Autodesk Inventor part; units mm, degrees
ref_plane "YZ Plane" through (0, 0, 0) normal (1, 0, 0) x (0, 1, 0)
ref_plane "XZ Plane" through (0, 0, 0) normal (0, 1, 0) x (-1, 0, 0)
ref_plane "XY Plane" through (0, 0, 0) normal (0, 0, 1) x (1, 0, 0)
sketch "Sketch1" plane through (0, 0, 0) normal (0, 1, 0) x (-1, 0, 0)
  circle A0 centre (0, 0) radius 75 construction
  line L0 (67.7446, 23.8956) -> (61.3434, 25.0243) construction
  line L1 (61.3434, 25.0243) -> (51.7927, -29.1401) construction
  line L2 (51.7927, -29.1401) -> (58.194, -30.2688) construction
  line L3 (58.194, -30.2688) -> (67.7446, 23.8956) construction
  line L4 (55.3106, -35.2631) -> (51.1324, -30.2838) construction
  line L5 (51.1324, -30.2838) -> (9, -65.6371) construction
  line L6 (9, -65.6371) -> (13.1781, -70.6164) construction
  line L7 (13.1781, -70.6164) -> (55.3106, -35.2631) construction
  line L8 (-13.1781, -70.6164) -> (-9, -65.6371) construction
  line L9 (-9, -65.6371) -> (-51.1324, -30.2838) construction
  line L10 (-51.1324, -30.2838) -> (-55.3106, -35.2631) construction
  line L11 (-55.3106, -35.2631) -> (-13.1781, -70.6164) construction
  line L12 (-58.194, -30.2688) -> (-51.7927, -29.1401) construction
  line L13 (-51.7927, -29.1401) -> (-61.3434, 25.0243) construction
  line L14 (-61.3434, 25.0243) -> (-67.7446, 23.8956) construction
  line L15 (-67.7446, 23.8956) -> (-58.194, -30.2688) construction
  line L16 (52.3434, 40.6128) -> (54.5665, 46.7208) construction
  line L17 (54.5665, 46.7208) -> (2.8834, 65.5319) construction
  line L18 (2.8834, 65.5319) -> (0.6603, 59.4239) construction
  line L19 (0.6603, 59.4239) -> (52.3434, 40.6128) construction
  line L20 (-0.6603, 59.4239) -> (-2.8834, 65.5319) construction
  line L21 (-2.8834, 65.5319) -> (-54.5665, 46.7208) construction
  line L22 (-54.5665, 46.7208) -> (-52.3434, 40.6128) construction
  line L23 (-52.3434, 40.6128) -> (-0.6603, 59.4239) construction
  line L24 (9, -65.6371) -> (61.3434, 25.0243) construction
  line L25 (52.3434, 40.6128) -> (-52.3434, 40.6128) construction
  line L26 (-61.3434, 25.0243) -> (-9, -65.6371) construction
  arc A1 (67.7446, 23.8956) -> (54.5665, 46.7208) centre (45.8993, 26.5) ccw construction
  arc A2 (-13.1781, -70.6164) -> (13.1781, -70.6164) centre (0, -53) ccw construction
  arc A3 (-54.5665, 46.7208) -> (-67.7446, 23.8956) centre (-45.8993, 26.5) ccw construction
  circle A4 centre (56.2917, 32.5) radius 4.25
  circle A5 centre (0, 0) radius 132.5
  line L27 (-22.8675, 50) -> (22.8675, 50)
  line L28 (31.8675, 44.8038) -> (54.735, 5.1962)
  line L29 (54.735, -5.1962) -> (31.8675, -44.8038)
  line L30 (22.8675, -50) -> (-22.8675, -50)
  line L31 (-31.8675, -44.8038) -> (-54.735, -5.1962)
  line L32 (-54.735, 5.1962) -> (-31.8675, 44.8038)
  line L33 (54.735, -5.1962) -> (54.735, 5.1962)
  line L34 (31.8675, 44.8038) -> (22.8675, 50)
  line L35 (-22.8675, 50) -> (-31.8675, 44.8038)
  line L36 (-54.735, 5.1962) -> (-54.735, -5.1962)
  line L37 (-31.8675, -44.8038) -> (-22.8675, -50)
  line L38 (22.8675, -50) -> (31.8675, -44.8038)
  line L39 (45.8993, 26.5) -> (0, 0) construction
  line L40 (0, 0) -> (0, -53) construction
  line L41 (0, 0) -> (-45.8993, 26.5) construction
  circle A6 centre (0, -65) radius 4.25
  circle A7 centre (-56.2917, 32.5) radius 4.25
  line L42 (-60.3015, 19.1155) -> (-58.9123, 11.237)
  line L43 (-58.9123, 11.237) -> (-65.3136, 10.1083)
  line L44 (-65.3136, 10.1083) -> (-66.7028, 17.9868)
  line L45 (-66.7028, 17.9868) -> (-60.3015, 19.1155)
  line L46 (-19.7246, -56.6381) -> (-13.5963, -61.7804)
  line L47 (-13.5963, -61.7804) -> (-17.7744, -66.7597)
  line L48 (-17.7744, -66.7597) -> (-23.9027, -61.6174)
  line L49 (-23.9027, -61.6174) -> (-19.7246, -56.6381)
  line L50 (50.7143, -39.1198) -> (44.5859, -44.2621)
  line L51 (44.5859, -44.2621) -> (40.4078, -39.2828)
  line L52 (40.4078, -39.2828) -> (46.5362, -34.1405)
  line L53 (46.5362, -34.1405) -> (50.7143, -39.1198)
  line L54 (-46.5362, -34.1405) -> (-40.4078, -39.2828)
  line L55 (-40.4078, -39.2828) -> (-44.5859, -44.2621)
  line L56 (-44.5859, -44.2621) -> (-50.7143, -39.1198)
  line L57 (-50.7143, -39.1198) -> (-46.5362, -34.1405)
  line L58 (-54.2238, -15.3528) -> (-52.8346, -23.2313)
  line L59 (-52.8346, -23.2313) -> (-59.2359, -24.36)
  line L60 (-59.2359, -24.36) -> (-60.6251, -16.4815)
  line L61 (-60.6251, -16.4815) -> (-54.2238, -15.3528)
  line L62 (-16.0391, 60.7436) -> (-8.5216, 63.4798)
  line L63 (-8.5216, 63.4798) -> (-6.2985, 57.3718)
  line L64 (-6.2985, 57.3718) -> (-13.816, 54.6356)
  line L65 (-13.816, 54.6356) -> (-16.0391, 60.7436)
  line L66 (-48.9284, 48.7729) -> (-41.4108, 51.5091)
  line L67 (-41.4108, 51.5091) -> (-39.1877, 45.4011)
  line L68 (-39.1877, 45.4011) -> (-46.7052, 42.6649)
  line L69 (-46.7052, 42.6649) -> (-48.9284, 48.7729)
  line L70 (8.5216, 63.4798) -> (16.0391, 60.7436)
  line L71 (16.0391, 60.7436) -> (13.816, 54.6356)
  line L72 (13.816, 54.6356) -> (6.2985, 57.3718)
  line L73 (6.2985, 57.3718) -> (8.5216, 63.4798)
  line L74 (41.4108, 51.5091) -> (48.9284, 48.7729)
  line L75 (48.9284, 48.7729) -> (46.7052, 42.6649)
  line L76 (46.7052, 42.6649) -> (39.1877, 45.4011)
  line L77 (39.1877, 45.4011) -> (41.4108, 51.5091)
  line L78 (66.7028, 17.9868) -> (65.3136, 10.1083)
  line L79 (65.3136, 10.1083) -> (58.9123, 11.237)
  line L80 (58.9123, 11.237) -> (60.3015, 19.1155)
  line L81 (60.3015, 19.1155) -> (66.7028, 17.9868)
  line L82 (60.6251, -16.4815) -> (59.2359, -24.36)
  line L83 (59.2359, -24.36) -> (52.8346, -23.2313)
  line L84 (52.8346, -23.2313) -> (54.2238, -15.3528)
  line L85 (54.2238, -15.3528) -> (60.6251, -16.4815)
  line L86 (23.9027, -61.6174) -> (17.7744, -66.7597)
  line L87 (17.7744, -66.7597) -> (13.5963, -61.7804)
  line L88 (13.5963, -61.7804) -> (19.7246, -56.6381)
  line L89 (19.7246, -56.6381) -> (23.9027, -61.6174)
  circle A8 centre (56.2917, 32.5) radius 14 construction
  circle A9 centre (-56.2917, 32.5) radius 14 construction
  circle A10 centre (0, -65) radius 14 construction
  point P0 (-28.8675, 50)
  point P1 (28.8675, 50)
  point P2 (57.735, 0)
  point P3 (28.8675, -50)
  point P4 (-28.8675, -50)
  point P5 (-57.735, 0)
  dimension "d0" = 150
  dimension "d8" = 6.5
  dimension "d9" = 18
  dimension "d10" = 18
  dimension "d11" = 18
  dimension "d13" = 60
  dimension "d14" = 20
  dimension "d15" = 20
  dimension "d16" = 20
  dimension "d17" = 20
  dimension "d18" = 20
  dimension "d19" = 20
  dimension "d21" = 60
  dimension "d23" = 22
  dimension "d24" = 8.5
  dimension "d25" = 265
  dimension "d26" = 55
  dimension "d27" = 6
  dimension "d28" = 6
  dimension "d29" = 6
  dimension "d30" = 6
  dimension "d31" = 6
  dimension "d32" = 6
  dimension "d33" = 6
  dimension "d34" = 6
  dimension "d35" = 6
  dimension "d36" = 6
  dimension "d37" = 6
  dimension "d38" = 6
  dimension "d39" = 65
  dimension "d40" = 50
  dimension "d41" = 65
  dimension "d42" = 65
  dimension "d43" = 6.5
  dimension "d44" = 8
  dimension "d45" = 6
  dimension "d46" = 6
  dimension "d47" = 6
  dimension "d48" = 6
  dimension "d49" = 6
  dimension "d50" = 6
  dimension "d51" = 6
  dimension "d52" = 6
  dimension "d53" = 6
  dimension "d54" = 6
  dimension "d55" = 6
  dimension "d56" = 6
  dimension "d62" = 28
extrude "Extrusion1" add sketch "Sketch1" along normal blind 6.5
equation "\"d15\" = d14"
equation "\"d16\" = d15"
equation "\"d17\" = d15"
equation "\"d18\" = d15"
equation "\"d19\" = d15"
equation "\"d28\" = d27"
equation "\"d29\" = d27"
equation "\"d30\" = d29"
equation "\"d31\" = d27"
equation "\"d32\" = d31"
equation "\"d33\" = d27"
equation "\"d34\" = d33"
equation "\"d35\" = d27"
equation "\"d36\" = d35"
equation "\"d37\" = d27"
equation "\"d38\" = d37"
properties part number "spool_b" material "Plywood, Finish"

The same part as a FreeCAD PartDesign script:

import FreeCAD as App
import Part
import Sketcher
from FreeCAD import Vector
Q = App.Units.Quantity

doc = App.newDocument("Part")
body = doc.addObject("PartDesign::Body", "Body")

# Sketch on XZ plane
sketch1 = body.newObject("Sketcher::SketchObject", "Sketch")
sketch1.AttachmentSupport = (doc.getObject("XZ_Plane"), [""])
sketch1.MapMode = "FlatFace"
sketch1.addGeometry(Part.Circle(Vector(0, 0, 0), Vector(0, 0, 1), 132.5), False)
sketch1.addGeometry(Part.LineSegment(Vector(50.7, -39.1, 0), Vector(46.5, -34.1, 0)), False)
sketch1.addGeometry(Part.LineSegment(Vector(46.5, -34.1, 0), Vector(40.4, -39.3, 0)), False)
sketch1.addGeometry(Part.LineSegment(Vector(40.4, -39.3, 0), Vector(44.6, -44.3, 0)), False)
sketch1.addGeometry(Part.LineSegment(Vector(44.6, -44.3, 0), Vector(50.7, -39.1, 0)), False)
sketch1.addGeometry(Part.LineSegment(Vector(23.9, -61.6, 0), Vector(19.7, -56.6, 0)), False)
sketch1.addGeometry(Part.LineSegment(Vector(19.7, -56.6, 0), Vector(13.6, -61.8, 0)), False)
sketch1.addGeometry(Part.LineSegment(Vector(13.6, -61.8, 0), Vector(17.8, -66.8, 0)), False)
sketch1.addGeometry(Part.LineSegment(Vector(17.8, -66.8, 0), Vector(23.9, -61.6, 0)), False)
sketch1.addGeometry(Part.LineSegment(Vector(60.6, -16.5, 0), Vector(54.2, -15.4, 0)), False)
sketch1.addGeometry(Part.LineSegment(Vector(54.2, -15.4, 0), Vector(52.8, -23.2, 0)), False)
sketch1.addGeometry(Part.LineSegment(Vector(52.8, -23.2, 0), Vector(59.2, -24.4, 0)), False)
sketch1.addGeometry(Part.LineSegment(Vector(59.2, -24.4, 0), Vector(60.6, -16.5, 0)), False)
sketch1.addGeometry(Part.Circle(Vector(0, -65, 0), Vector(0, 0, 1), 4.2), False)
sketch1.addGeometry(Part.LineSegment(Vector(-19.7, -56.6, 0), Vector(-23.9, -61.6, 0)), False)
sketch1.addGeometry(Part.LineSegment(Vector(-23.9, -61.6, 0), Vector(-17.8, -66.8, 0)), False)
sketch1.addGeometry(Part.LineSegment(Vector(-17.8, -66.8, 0), Vector(-13.6, -61.8, 0)), False)
sketch1.addGeometry(Part.LineSegment(Vector(-13.6, -61.8, 0), Vector(-19.7, -56.6, 0)), False)
sketch1.addGeometry(Part.LineSegment(Vector(-46.5, -34.1, 0), Vector(-50.7, -39.1, 0)), False)
sketch1.addGeometry(Part.LineSegment(Vector(-50.7, -39.1, 0), Vector(-44.6, -44.3, 0)), False)
sketch1.addGeometry(Part.LineSegment(Vector(-44.6, -44.3, 0), Vector(-40.4, -39.3, 0)), False)
sketch1.addGeometry(Part.LineSegment(Vector(-40.4, -39.3, 0), Vector(-46.5, -34.1, 0)), False)
sketch1.addGeometry(Part.LineSegment(Vector(-54.2, -15.4, 0), Vector(-60.6, -16.5, 0)), False)
sketch1.addGeometry(Part.LineSegment(Vector(-60.6, -16.5, 0), Vector(-59.2, -24.4, 0)), False)
sketch1.addGeometry(Part.LineSegment(Vector(-59.2, -24.4, 0), Vector(-52.8, -23.2, 0)), False)
sketch1.addGeometry(Part.LineSegment(Vector(-52.8, -23.2, 0), Vector(-54.2, -15.4, 0)), False)
sketch1.addGeometry(Part.LineSegment(Vector(66.7, 18, 0), Vector(60.3, 19.1, 0)), False)
sketch1.addGeometry(Part.LineSegment(Vector(60.3, 19.1, 0), Vector(58.9, 11.2, 0)), False)
sketch1.addGeometry(Part.LineSegment(Vector(58.9, 11.2, 0), Vector(65.3, 10.1, 0)), False)
sketch1.addGeometry(Part.LineSegment(Vector(65.3, 10.1, 0), Vector(66.7, 18, 0)), False)
sketch1.addGeometry(Part.Circle(Vector(56.3, 32.5, 0), Vector(0, 0, 1), 4.2), False)
sketch1.addGeometry(Part.LineSegment(Vector(46.7, 42.7, 0), Vector(48.9, 48.8, 0)), False)
sketch1.addGeometry(Part.LineSegment(Vector(48.9, 48.8, 0), Vector(41.4, 51.5, 0)), False)
sketch1.addGeometry(Part.LineSegment(Vector(41.4, 51.5, 0), Vector(39.2, 45.4, 0)), False)
sketch1.addGeometry(Part.LineSegment(Vector(39.2, 45.4, 0), Vector(46.7, 42.7, 0)), False)
sketch1.addGeometry(Part.LineSegment(Vector(13.8, 54.6, 0), Vector(16, 60.7, 0)), False)
sketch1.addGeometry(Part.LineSegment(Vector(16, 60.7, 0), Vector(8.5, 63.5, 0)), False)
sketch1.addGeometry(Part.LineSegment(Vector(8.5, 63.5, 0), Vector(6.3, 57.4, 0)), False)
sketch1.addGeometry(Part.LineSegment(Vector(6.3, 57.4, 0), Vector(13.8, 54.6, 0)), False)
sketch1.addGeometry(Part.LineSegment(Vector(31.9, 44.8, 0), Vector(22.9, 50, 0)), False)
sketch1.addGeometry(Part.LineSegment(Vector(22.9, 50, 0), Vector(-22.9, 50, 0)), False)
sketch1.addGeometry(Part.LineSegment(Vector(-22.9, 50, 0), Vector(-31.9, 44.8, 0)), False)
sketch1.addGeometry(Part.LineSegment(Vector(-31.9, 44.8, 0), Vector(-54.7, 5.2, 0)), False)
sketch1.addGeometry(Part.LineSegment(Vector(-54.7, 5.2, 0), Vector(-54.7, -5.2, 0)), False)
sketch1.addGeometry(Part.LineSegment(Vector(-54.7, -5.2, 0), Vector(-31.9, -44.8, 0)), False)
sketch1.addGeometry(Part.LineSegment(Vector(-31.9, -44.8, 0), Vector(-22.9, -50, 0)), False)
sketch1.addGeometry(Part.LineSegment(Vector(-22.9, -50, 0), Vector(22.9, -50, 0)), False)
sketch1.addGeometry(Part.LineSegment(Vector(22.9, -50, 0), Vector(31.9, -44.8, 0)), False)
sketch1.addGeometry(Part.LineSegment(Vector(31.9, -44.8, 0), Vector(54.7, -5.2, 0)), False)
sketch1.addGeometry(Part.LineSegment(Vector(54.7, -5.2, 0), Vector(54.7, 5.2, 0)), False)
sketch1.addGeometry(Part.LineSegment(Vector(54.7, 5.2, 0), Vector(31.9, 44.8, 0)), False)
sketch1.addGeometry(Part.LineSegment(Vector(-60.3, 19.1, 0), Vector(-66.7, 18, 0)), False)
sketch1.addGeometry(Part.LineSegment(Vector(-66.7, 18, 0), Vector(-65.3, 10.1, 0)), False)
sketch1.addGeometry(Part.LineSegment(Vector(-65.3, 10.1, 0), Vector(-58.9, 11.2, 0)), False)
sketch1.addGeometry(Part.LineSegment(Vector(-58.9, 11.2, 0), Vector(-60.3, 19.1, 0)), False)
sketch1.addGeometry(Part.Circle(Vector(-56.3, 32.5, 0), Vector(0, 0, 1), 4.2), False)
sketch1.addGeometry(Part.LineSegment(Vector(-6.3, 57.4, 0), Vector(-8.5, 63.5, 0)), False)
sketch1.addGeometry(Part.LineSegment(Vector(-8.5, 63.5, 0), Vector(-16, 60.7, 0)), False)
sketch1.addGeometry(Part.LineSegment(Vector(-16, 60.7, 0), Vector(-13.8, 54.6, 0)), False)
sketch1.addGeometry(Part.LineSegment(Vector(-13.8, 54.6, 0), Vector(-6.3, 57.4, 0)), False)
sketch1.addGeometry(Part.LineSegment(Vector(-39.2, 45.4, 0), Vector(-41.4, 51.5, 0)), False)
sketch1.addGeometry(Part.LineSegment(Vector(-41.4, 51.5, 0), Vector(-48.9, 48.8, 0)), False)
sketch1.addGeometry(Part.LineSegment(Vector(-48.9, 48.8, 0), Vector(-46.7, 42.7, 0)), False)
sketch1.addGeometry(Part.LineSegment(Vector(-46.7, 42.7, 0), Vector(-39.2, 45.4, 0)), False)
sketch1.addConstraint(Sketcher.Constraint("Coincident", 1, 2, 2, 1))
sketch1.addConstraint(Sketcher.Constraint("Coincident", 2, 2, 3, 1))
sketch1.addConstraint(Sketcher.Constraint("Coincident", 3, 2, 4, 1))
sketch1.addConstraint(Sketcher.Constraint("Coincident", 4, 2, 1, 1))
sketch1.addConstraint(Sketcher.Constraint("Coincident", 5, 2, 6, 1))
sketch1.addConstraint(Sketcher.Constraint("Coincident", 6, 2, 7, 1))
sketch1.addConstraint(Sketcher.Constraint("Coincident", 7, 2, 8, 1))
sketch1.addConstraint(Sketcher.Constraint("Coincident", 8, 2, 5, 1))
sketch1.addConstraint(Sketcher.Constraint("Coincident", 9, 2, 10, 1))
sketch1.addConstraint(Sketcher.Constraint("Coincident", 10, 2, 11, 1))
sketch1.addConstraint(Sketcher.Constraint("Coincident", 11, 2, 12, 1))
sketch1.addConstraint(Sketcher.Constraint("Coincident", 12, 2, 9, 1))
sketch1.addConstraint(Sketcher.Constraint("Coincident", 14, 2, 15, 1))
sketch1.addConstraint(Sketcher.Constraint("Coincident", 15, 2, 16, 1))
sketch1.addConstraint(Sketcher.Constraint("Coincident", 16, 2, 17, 1))
sketch1.addConstraint(Sketcher.Constraint("Coincident", 17, 2, 14, 1))
sketch1.addConstraint(Sketcher.Constraint("Coincident", 18, 2, 19, 1))
sketch1.addConstraint(Sketcher.Constraint("Coincident", 19, 2, 20, 1))
sketch1.addConstraint(Sketcher.Constraint("Coincident", 20, 2, 21, 1))
sketch1.addConstraint(Sketcher.Constraint("Coincident", 21, 2, 18, 1))
sketch1.addConstraint(Sketcher.Constraint("Coincident", 22, 2, 23, 1))
sketch1.addConstraint(Sketcher.Constraint("Coincident", 23, 2, 24, 1))
sketch1.addConstraint(Sketcher.Constraint("Coincident", 24, 2, 25, 1))
sketch1.addConstraint(Sketcher.Constraint("Coincident", 25, 2, 22, 1))
sketch1.addConstraint(Sketcher.Constraint("Coincident", 26, 2, 27, 1))
sketch1.addConstraint(Sketcher.Constraint("Coincident", 27, 2, 28, 1))
sketch1.addConstraint(Sketcher.Constraint("Coincident", 28, 2, 29, 1))
sketch1.addConstraint(Sketcher.Constraint("Coincident", 29, 2, 26, 1))
sketch1.addConstraint(Sketcher.Constraint("Coincident", 31, 2, 32, 1))
sketch1.addConstraint(Sketcher.Constraint("Coincident", 32, 2, 33, 1))
sketch1.addConstraint(Sketcher.Constraint("Coincident", 33, 2, 34, 1))
sketch1.addConstraint(Sketcher.Constraint("Coincident", 34, 2, 31, 1))
sketch1.addConstraint(Sketcher.Constraint("Coincident", 35, 2, 36, 1))
sketch1.addConstraint(Sketcher.Constraint("Coincident", 36, 2, 37, 1))
sketch1.addConstraint(Sketcher.Constraint("Coincident", 37, 2, 38, 1))
sketch1.addConstraint(Sketcher.Constraint("Coincident", 38, 2, 35, 1))
sketch1.addConstraint(Sketcher.Constraint("Coincident", 39, 2, 40, 1))
sketch1.addConstraint(Sketcher.Constraint("Coincident", 40, 2, 41, 1))
sketch1.addConstraint(Sketcher.Constraint("Coincident", 41, 2, 42, 1))
sketch1.addConstraint(Sketcher.Constraint("Coincident", 42, 2, 43, 1))
sketch1.addConstraint(Sketcher.Constraint("Coincident", 43, 2, 44, 1))
sketch1.addConstraint(Sketcher.Constraint("Coincident", 44, 2, 45, 1))
sketch1.addConstraint(Sketcher.Constraint("Coincident", 45, 2, 46, 1))
sketch1.addConstraint(Sketcher.Constraint("Coincident", 46, 2, 47, 1))
sketch1.addConstraint(Sketcher.Constraint("Coincident", 47, 2, 48, 1))
sketch1.addConstraint(Sketcher.Constraint("Coincident", 48, 2, 49, 1))
sketch1.addConstraint(Sketcher.Constraint("Coincident", 49, 2, 50, 1))
sketch1.addConstraint(Sketcher.Constraint("Coincident", 50, 2, 39, 1))
sketch1.addConstraint(Sketcher.Constraint("Coincident", 51, 2, 52, 1))
sketch1.addConstraint(Sketcher.Constraint("Coincident", 52, 2, 53, 1))
sketch1.addConstraint(Sketcher.Constraint("Coincident", 53, 2, 54, 1))
sketch1.addConstraint(Sketcher.Constraint("Coincident", 54, 2, 51, 1))
sketch1.addConstraint(Sketcher.Constraint("Coincident", 56, 2, 57, 1))
sketch1.addConstraint(Sketcher.Constraint("Coincident", 57, 2, 58, 1))
sketch1.addConstraint(Sketcher.Constraint("Coincident", 58, 2, 59, 1))
sketch1.addConstraint(Sketcher.Constraint("Coincident", 59, 2, 56, 1))
sketch1.addConstraint(Sketcher.Constraint("Coincident", 60, 2, 61, 1))
sketch1.addConstraint(Sketcher.Constraint("Coincident", 61, 2, 62, 1))
sketch1.addConstraint(Sketcher.Constraint("Coincident", 62, 2, 63, 1))
sketch1.addConstraint(Sketcher.Constraint("Coincident", 63, 2, 60, 1))
sketch1.addConstraint(Sketcher.Constraint("Horizontal", 40))
sketch1.addConstraint(Sketcher.Constraint("Vertical", 43))
sketch1.addConstraint(Sketcher.Constraint("Horizontal", 46))
sketch1.addConstraint(Sketcher.Constraint("Vertical", 49))
sketch1.addConstraint(Sketcher.Constraint("Coincident", 0, 3, -1, 1))
sketch1.addConstraint(Sketcher.Constraint("Equal", 13, 30))
sketch1.addConstraint(Sketcher.Constraint("Equal", 30, 55))
sketch1.addConstraint(Sketcher.Constraint("Symmetric", 39, 2, 45, 2, -1, 1))
sketch1.addConstraint(Sketcher.Constraint("Symmetric", 41, 2, 47, 2, -1, 1))
sketch1.addConstraint(Sketcher.Constraint("Symmetric", 42, 2, 48, 2, -1, 1))
sketch1.addConstraint(Sketcher.Constraint("Symmetric", 44, 2, 50, 2, -1, 1))
sketch1.addConstraint(Sketcher.Constraint("Symmetric", 30, 3, 55, 3, -2))
sketch1.addConstraint(Sketcher.Constraint("Symmetric", 8, 2, 14, 2, -2))
sketch1.addConstraint(Sketcher.Constraint("Symmetric", 7, 2, 15, 2, -2))
sketch1.addConstraint(Sketcher.Constraint("Symmetric", 6, 2, 16, 2, -2))
sketch1.addConstraint(Sketcher.Constraint("Symmetric", 5, 2, 17, 2, -2))
sketch1.addConstraint(Sketcher.Constraint("Symmetric", 4, 2, 18, 2, -2))
sketch1.addConstraint(Sketcher.Constraint("Symmetric", 3, 2, 19, 2, -2))
sketch1.addConstraint(Sketcher.Constraint("Symmetric", 2, 2, 20, 2, -2))
sketch1.addConstraint(Sketcher.Constraint("Symmetric", 1, 2, 21, 2, -2))
sketch1.addConstraint(Sketcher.Constraint("Symmetric", 12, 2, 22, 2, -2))
sketch1.addConstraint(Sketcher.Constraint("Symmetric", 11, 2, 23, 2, -2))
sketch1.addConstraint(Sketcher.Constraint("Symmetric", 10, 2, 24, 2, -2))
sketch1.addConstraint(Sketcher.Constraint("Symmetric", 9, 2, 25, 2, -2))
sketch1.addConstraint(Sketcher.Constraint("Symmetric", 44, 2, 47, 2, -2))
sketch1.addConstraint(Sketcher.Constraint("Symmetric", 29, 2, 51, 2, -2))
sketch1.addConstraint(Sketcher.Constraint("Symmetric", 28, 2, 52, 2, -2))
sketch1.addConstraint(Sketcher.Constraint("Symmetric", 27, 2, 53, 2, -2))
sketch1.addConstraint(Sketcher.Constraint("Symmetric", 26, 2, 54, 2, -2))
sketch1.addConstraint(Sketcher.Constraint("Symmetric", 36, 2, 56, 2, -2))
sketch1.addConstraint(Sketcher.Constraint("Symmetric", 35, 2, 57, 2, -2))
sketch1.addConstraint(Sketcher.Constraint("Symmetric", 38, 2, 58, 2, -2))
sketch1.addConstraint(Sketcher.Constraint("Symmetric", 37, 2, 59, 2, -2))
sketch1.addConstraint(Sketcher.Constraint("Symmetric", 32, 2, 60, 2, -2))
sketch1.addConstraint(Sketcher.Constraint("Symmetric", 31, 2, 61, 2, -2))
sketch1.addConstraint(Sketcher.Constraint("Symmetric", 34, 2, 62, 2, -2))
sketch1.addConstraint(Sketcher.Constraint("Symmetric", 33, 2, 63, 2, -2))
sketch1.addConstraint(Sketcher.Constraint("PointOnObject", 13, 3, -2))
sketch1.addConstraint(Sketcher.Constraint("Perpendicular", 1, 2))
sketch1.addConstraint(Sketcher.Constraint("Perpendicular", 2, 3))
sketch1.addConstraint(Sketcher.Constraint("Perpendicular", 3, 4))
sketch1.addConstraint(Sketcher.Constraint("Perpendicular", 4, 5))
sketch1.addConstraint(Sketcher.Constraint("Perpendicular", 5, 6))
sketch1.addConstraint(Sketcher.Constraint("Perpendicular", 6, 7))
sketch1.addConstraint(Sketcher.Constraint("Perpendicular", 7, 8))
sketch1.addConstraint(Sketcher.Constraint("Perpendicular", 9, 10))
sketch1.addConstraint(Sketcher.Constraint("Perpendicular", 10, 11))
sketch1.addConstraint(Sketcher.Constraint("Perpendicular", 11, 12))
sketch1.addConstraint(Sketcher.Constraint("Perpendicular", 12, 26))
sketch1.addConstraint(Sketcher.Constraint("Perpendicular", 26, 27))
sketch1.addConstraint(Sketcher.Constraint("Perpendicular", 27, 28))
sketch1.addConstraint(Sketcher.Constraint("Perpendicular", 28, 29))
sketch1.addConstraint(Sketcher.Constraint("Perpendicular", 31, 32))
sketch1.addConstraint(Sketcher.Constraint("Perpendicular", 32, 33))
sketch1.addConstraint(Sketcher.Constraint("Perpendicular", 33, 34))
sketch1.addConstraint(Sketcher.Constraint("Perpendicular", 34, 35))
sketch1.addConstraint(Sketcher.Constraint("Perpendicular", 35, 36))
sketch1.addConstraint(Sketcher.Constraint("Perpendicular", 36, 37))
sketch1.addConstraint(Sketcher.Constraint("Perpendicular", 37, 38))
sketch1.addConstraint(Sketcher.Constraint("Perpendicular", 39, 42))
sketch1.addConstraint(Sketcher.Constraint("Perpendicular", 41, 44))
sketch1.addConstraint(Sketcher.Constraint("Perpendicular", 44, 47))
sketch1.addConstraint(Sketcher.Constraint("Perpendicular", 47, 50))
sketch1.addConstraint(Sketcher.Constraint("Horizontal", 43, 2, 48, 2))
sketch1.addConstraint(Sketcher.Constraint("Equal", 3, 5))
sketch1.addConstraint(Sketcher.Constraint("Equal", 4, 6))
sketch1.addConstraint(Sketcher.Constraint("Equal", 7, 9))
sketch1.addConstraint(Sketcher.Constraint("Equal", 8, 10))
sketch1.addConstraint(Sketcher.Constraint("Equal", 24, 26))
sketch1.addConstraint(Sketcher.Constraint("Equal", 25, 27))
sketch1.addConstraint(Sketcher.Constraint("Equal", 28, 31))
sketch1.addConstraint(Sketcher.Constraint("Equal", 29, 32))
sketch1.addConstraint(Sketcher.Constraint("Equal", 33, 35))
sketch1.addConstraint(Sketcher.Constraint("Equal", 34, 36))
sketch1.addConstraint(Sketcher.Constraint("Diameter", 0, Q("265 mm")))
sketch1.addConstraint(Sketcher.Constraint("Diameter", 13, Q("8.5 mm")))
sketch1.addConstraint(Sketcher.Constraint("Angle", 3, Q("-50.0002 deg")))
sketch1.addConstraint(Sketcher.Constraint("Angle", 34, Q("-20.0004 deg")))
sketch1.addConstraint(Sketcher.Constraint("Angle", 39, Q("149.9998 deg")))
sketch1.addConstraint(Sketcher.Constraint("Distance", 2, Q("8 mm")))
sketch1.addConstraint(Sketcher.Constraint("DistanceY", 13, 3, -1, 1, Q("65 mm")))
sketch1.addConstraint(Sketcher.Constraint("DistanceY", -1, 1, 39, 2, Q("50 mm")))
sketch1.addConstraint(Sketcher.Constraint("Distance", 1, Q("6.5 mm")))
sketch1.addConstraint(Sketcher.Constraint("Angle", 9, Q("170.0002 deg")))
sketch1.addConstraint(Sketcher.Constraint("DistanceY", -1, 1, 30, 3, Q("32.5 mm")))
sketch1.addConstraint(Sketcher.Constraint("DistanceX", 40, 2, 40, 1, Q("45.735 mm")))
sketch1.addConstraint(Sketcher.Constraint("DistanceY", 11, 2, -1, 1, Q("24.36 mm")))
sketch1.addConstraint(Sketcher.Constraint("Distance", 42, Q("45.735 mm")))
sketch1.addConstraint(Sketcher.Constraint("DistanceY", 43, 2, 43, 1, Q("10.3924 mm")))
sketch1.addConstraint(Sketcher.Constraint("DistanceX", -1, 1, 3, 2, Q("44.586 mm")))
sketch1.addConstraint(Sketcher.Constraint("DistanceY", 3, 2, -1, 1, Q("44.262 mm")))
sketch1.addConstraint(Sketcher.Constraint("DistanceY", 5, 2, -1, 1, Q("56.638 mm")))
sketch1.addConstraint(Sketcher.Constraint("DistanceX", -1, 1, 11, 2, Q("59.236 mm")))
sketch1.addConstraint(Sketcher.Constraint("DistanceY", -1, 1, 27, 2, Q("11.237 mm")))
sketch1.addConstraint(Sketcher.Constraint("DistanceY", -1, 1, 31, 2, Q("48.773 mm")))
sketch1.addConstraint(Sketcher.Constraint("DistanceX", -1, 1, 35, 2, Q("16.039 mm")))
sketch1.addConstraint(Sketcher.Constraint("DistanceX", -1, 1, 30, 3, Q("56.2917 mm")))
sketch1.addConstraint(Sketcher.Constraint("DistanceX", -1, 1, 5, 2, Q("19.7246 mm")))
sketch1.addConstraint(Sketcher.Constraint("DistanceX", -1, 1, 26, 2, Q("60.3015 mm")))
sketch1.addConstraint(Sketcher.Constraint("DistanceX", -1, 1, 31, 2, Q("48.9284 mm")))
sketch1.addConstraint(Sketcher.Constraint("DistanceY", -1, 1, 35, 2, Q("60.7436 mm")))
pad1 = body.newObject("PartDesign::Pad", "Pad")
pad1.Profile = sketch1
pad1.Length = 6.5
pad1.Reversed = True

doc.recompute()
